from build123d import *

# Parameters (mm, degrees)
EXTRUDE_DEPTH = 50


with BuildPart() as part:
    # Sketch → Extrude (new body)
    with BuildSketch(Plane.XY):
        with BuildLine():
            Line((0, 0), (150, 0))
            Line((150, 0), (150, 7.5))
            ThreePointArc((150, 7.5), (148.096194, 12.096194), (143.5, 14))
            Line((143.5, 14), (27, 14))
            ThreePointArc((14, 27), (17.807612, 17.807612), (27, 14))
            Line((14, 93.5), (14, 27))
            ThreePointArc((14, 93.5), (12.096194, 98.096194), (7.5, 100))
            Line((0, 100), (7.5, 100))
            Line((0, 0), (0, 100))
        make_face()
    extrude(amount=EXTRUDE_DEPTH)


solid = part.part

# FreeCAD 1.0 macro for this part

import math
import FreeCAD as App
import Part
import Sketcher

V = App.Vector

doc = App.newDocument("Part")
params = doc.addObject("Spreadsheet::Sheet", "Params")
for row, (alias, value) in enumerate([
    ("sketch1_radius", "13.000001 mm"),
    ("sketch1_radius2", "6.5 mm"),
    ("sketch1_width", "150 mm"),
    ("sketch1_height", "100 mm"),
    ("sketch1_width2", "116.5 mm"),
    ("pad1_length", "50 mm"),
], start=1):
    params.set(f"A{row}", alias)
    params.set(f"B{row}", "=" + value)
    params.setAlias(f"B{row}", alias)

body = doc.addObject("PartDesign::Body", "Body")

sketch1 = body.newObject("Sketcher::SketchObject", "Sketch")
sketch1.AttachmentSupport = (doc.getObject("XY_Plane"), [""])
sketch1.MapMode = "FlatFace"
sketch1.addGeometry(Part.LineSegment(V(0, 0, 0), V(150, 0, 0)), False)
sketch1.addGeometry(Part.LineSegment(V(150, 0, 0), V(150, 8, 0)), False)
sketch1.addGeometry(Part.ArcOfCircle(Part.Circle(V(143, 7, 0), V(0, 0, 1), 7), math.radians(0), math.radians(90)), False)
sketch1.addGeometry(Part.LineSegment(V(144, 14, 0), V(27, 14, 0)), False)
sketch1.addGeometry(Part.ArcOfCircle(Part.Circle(V(27, 27, 0), V(0, 0, 1), 13), math.radians(-180), math.radians(-90)), False)
sketch1.addGeometry(Part.LineSegment(V(14, 27, 0), V(14, 94, 0)), False)
sketch1.addGeometry(Part.ArcOfCircle(Part.Circle(V(7, 93, 0), V(0, 0, 1), 7), math.radians(0), math.radians(90)), False)
sketch1.addGeometry(Part.LineSegment(V(8, 100, 0), V(0, 100, 0)), False)
sketch1.addGeometry(Part.LineSegment(V(0, 100, 0), V(0, 0, 0)), False)
sketch1.addConstraint(Sketcher.Constraint("Coincident", 0, 2, 1, 1))
sketch1.addConstraint(Sketcher.Constraint("Tangent", 1, 2, 2, 1))
sketch1.addConstraint(Sketcher.Constraint("Tangent", 2, 2, 3, 1))
sketch1.addConstraint(Sketcher.Constraint("Tangent", 3, 2, 4, 2))
sketch1.addConstraint(Sketcher.Constraint("Tangent", 4, 1, 5, 1))
sketch1.addConstraint(Sketcher.Constraint("Tangent", 5, 2, 6, 1))
sketch1.addConstraint(Sketcher.Constraint("Tangent", 6, 2, 7, 1))
sketch1.addConstraint(Sketcher.Constraint("Coincident", 7, 2, 8, 1))
sketch1.addConstraint(Sketcher.Constraint("Coincident", 8, 2, 0, 1))
sketch1.addConstraint(Sketcher.Constraint("Horizontal", 0))
sketch1.addConstraint(Sketcher.Constraint("Vertical", 1))
sketch1.addConstraint(Sketcher.Constraint("Horizontal", 3))
sketch1.addConstraint(Sketcher.Constraint("Vertical", 5))
sketch1.addConstraint(Sketcher.Constraint("Horizontal", 7))
sketch1.addConstraint(Sketcher.Constraint("Vertical", 8))
sketch1.addConstraint(Sketcher.Constraint("Coincident", 8, 2, -1, 1))
sketch1.addConstraint(Sketcher.Constraint("Equal", 2, 6))
sketch1.addConstraint(Sketcher.Constraint("Equal", 7, 1))
sketch1.addConstraint(Sketcher.Constraint("Radius", 4, 13.000001))
sketch1.addConstraint(Sketcher.Constraint("Radius", 2, 6.5))
sketch1.addConstraint(Sketcher.Constraint("DistanceX", 0, 1, 0, 2, 150.0))
sketch1.addConstraint(Sketcher.Constraint("DistanceY", 8, 2, 8, 1, 100.0))
sketch1.addConstraint(Sketcher.Constraint("DistanceX", 3, 2, 3, 1, 116.5))
sketch1.setExpression("Constraints[18]", "Params.sketch1_radius")
sketch1.setExpression("Constraints[19]", "Params.sketch1_radius2")
sketch1.setExpression("Constraints[20]", "Params.sketch1_width")
sketch1.setExpression("Constraints[21]", "Params.sketch1_height")
sketch1.setExpression("Constraints[22]", "Params.sketch1_width2")
pad1 = body.newObject("PartDesign::Pad", "Pad")
pad1.Profile = sketch1
pad1.setExpression("Length", "Params.pad1_length")

doc.recompute()
